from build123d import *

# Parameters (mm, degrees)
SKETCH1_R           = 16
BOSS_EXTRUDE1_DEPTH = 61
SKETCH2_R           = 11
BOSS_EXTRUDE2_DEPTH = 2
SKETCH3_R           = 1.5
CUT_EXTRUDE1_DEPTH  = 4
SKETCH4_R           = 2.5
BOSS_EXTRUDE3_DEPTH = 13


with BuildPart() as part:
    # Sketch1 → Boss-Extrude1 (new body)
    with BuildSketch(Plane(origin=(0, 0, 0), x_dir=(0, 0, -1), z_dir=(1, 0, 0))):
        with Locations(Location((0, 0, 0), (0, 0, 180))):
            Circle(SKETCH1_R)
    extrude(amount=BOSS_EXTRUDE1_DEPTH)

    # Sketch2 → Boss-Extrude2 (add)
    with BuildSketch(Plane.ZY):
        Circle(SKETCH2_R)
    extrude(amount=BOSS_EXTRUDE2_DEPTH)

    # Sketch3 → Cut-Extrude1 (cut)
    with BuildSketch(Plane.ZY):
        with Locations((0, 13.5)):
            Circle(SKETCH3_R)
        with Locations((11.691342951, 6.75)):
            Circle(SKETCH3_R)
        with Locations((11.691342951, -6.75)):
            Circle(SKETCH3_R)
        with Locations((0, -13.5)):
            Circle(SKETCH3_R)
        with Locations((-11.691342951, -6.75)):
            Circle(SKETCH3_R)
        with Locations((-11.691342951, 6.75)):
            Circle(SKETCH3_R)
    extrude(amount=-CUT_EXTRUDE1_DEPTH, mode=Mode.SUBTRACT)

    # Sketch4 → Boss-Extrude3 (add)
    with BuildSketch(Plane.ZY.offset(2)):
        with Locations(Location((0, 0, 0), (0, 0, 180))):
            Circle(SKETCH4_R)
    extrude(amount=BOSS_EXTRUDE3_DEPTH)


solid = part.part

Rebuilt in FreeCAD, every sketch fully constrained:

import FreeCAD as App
import Part
import Sketcher
from FreeCAD import Vector
Q = App.Units.Quantity

doc = App.newDocument("Part")
body = doc.addObject("PartDesign::Body", "Body")

# Sketch on YZ plane
sketch1 = body.newObject("Sketcher::SketchObject", "Sketch")
sketch1.AttachmentSupport = (doc.getObject("YZ_Plane"), [""])
sketch1.MapMode = "FlatFace"
sketch1.addGeometry(Part.Circle(Vector(0, 0, 0), Vector(0, 0, 1), 16), False)
sketch1.addConstraint([
    Sketcher.Constraint("Coincident", 0, 3, -1, 1),
    Sketcher.Constraint("Diameter", 0, Q("32 mm")),
])
pad1 = body.newObject("PartDesign::Pad", "Pad")
pad1.Profile = sketch1
pad1.Length = 61

# Sketch on YZ plane
sketch2 = body.newObject("Sketcher::SketchObject", "Sketch001")
sketch2.AttachmentSupport = (doc.getObject("YZ_Plane"), [""])
sketch2.MapMode = "FlatFace"
sketch2.addGeometry(Part.Circle(Vector(0, 0, 0), Vector(0, 0, 1), 11), False)
sketch2.addConstraint([
    Sketcher.Constraint("Coincident", 0, 3, -1, 1),
    Sketcher.Constraint("Diameter", 0, Q("22 mm")),
])
pad2 = body.newObject("PartDesign::Pad", "Pad001")
pad2.Profile = sketch2
pad2.Length = 2
pad2.Reversed = True

# Sketch on YZ plane
sketch3 = body.newObject("Sketcher::SketchObject", "Sketch002")
sketch3.AttachmentSupport = (doc.getObject("YZ_Plane"), [""])
sketch3.MapMode = "FlatFace"
sketch3.addGeometry([
    Part.Circle(Vector(13.5, 0, 0), Vector(0, 0, 1), 1.5),  # 0
    Part.Circle(Vector(6.75, 11.691343, 0), Vector(0, 0, 1), 1.5),  # 1
    Part.Circle(Vector(-6.75, 11.691343, 0), Vector(0, 0, 1), 1.5),  # 2
    Part.Circle(Vector(-13.5, 0, 0), Vector(0, 0, 1), 1.5),  # 3
    Part.Circle(Vector(-6.75, -11.691343, 0), Vector(0, 0, 1), 1.5),  # 4
    Part.Circle(Vector(6.75, -11.691343, 0), Vector(0, 0, 1), 1.5),  # 5
], False)
sketch3.addConstraint([
    Sketcher.Constraint("Equal", 0, 1),
    Sketcher.Constraint("Equal", 1, 2),
    Sketcher.Constraint("Equal", 2, 3),
    Sketcher.Constraint("Equal", 3, 4),
    Sketcher.Constraint("Equal", 4, 5),
    Sketcher.Constraint("Symmetric", 0, 3, 3, 3, -1, 1),
    Sketcher.Constraint("Symmetric", 1, 3, 4, 3, -1, 1),
    Sketcher.Constraint("Symmetric", 2, 3, 5, 3, -1, 1),
    Sketcher.Constraint("Symmetric", 1, 3, 2, 3, -2),
    Sketcher.Constraint("PointOnObject", 0, 3, -1),
    Sketcher.Constraint("Diameter", 0, Q("3 mm")),
    Sketcher.Constraint("DistanceX", 3, 3, 0, 3, Q("27 mm")),
    Sketcher.Constraint("DistanceX", 2, 3, 1, 3, Q("13.5 mm")),
    Sketcher.Constraint("DistanceY", -1, 1, 1, 3, Q("11.691343 mm")),
])
pocket1 = body.newObject("PartDesign::Pocket", "Pocket")
pocket1.Profile = sketch3
pocket1.Length = 4
pocket1.Reversed = True

# Sketch on YZ plane
sketch4 = body.newObject("Sketcher::SketchObject", "Sketch003")
sketch4.AttachmentSupport = (doc.getObject("YZ_Plane"), [""])
sketch4.MapMode = "FlatFace"
sketch4.AttachmentOffset = App.Placement(Vector(0, 0, -2), App.Rotation())
sketch4.addGeometry(Part.Circle(Vector(0, 0, 0), Vector(0, 0, 1), 2.5), False)
sketch4.addConstraint([
    Sketcher.Constraint("Coincident", 0, 3, -1, 1),
    Sketcher.Constraint("Diameter", 0, Q("5 mm")),
])
pad3 = body.newObject("PartDesign::Pad", "Pad002")
pad3.Profile = sketch4
pad3.Length = 13
pad3.Reversed = True

doc.recompute()
